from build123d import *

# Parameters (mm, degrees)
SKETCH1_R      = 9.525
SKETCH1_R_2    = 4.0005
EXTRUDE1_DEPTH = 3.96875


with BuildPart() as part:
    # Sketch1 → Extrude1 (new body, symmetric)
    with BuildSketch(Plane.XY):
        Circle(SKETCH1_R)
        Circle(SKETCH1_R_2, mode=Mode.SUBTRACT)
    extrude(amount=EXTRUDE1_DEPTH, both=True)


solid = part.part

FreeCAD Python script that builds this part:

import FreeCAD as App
import Part
import Sketcher

V = App.Vector
Q = App.Units.Quantity

doc = App.newDocument("Part")
body = doc.addObject("PartDesign::Body", "Body")

# Sketch on XY plane
sketch1 = doc.addObject("Sketcher::SketchObject", "Sketch")
body.addObject(sketch1)
sketch1.AttachmentSupport = (doc.XY_Plane, [""])
sketch1.MapMode = "FlatFace"
sketch1.addGeometry([
    Part.Circle(V(0, 0, 0), V(0, 0, 1), 9.5),
    Part.Circle(V(0, 0, 0), V(0, 0, 1), 4),
], False)
sketch1.addConstraint([
    Sketcher.Constraint("Coincident", 0, 3, -1, 1),
    Sketcher.Constraint("Coincident", 1, 3, -1, 1),
    Sketcher.Constraint("Diameter", 0, Q("0.75 in")),
    Sketcher.Constraint("Diameter", 1, Q("0.315 in")),
])
pad1 = doc.addObject("PartDesign::Pad", "Pad")
body.addObject(pad1)
pad1.Profile = sketch1
pad1.Length = Q("0.3125 in")
pad1.Midplane = True

doc.recompute()
